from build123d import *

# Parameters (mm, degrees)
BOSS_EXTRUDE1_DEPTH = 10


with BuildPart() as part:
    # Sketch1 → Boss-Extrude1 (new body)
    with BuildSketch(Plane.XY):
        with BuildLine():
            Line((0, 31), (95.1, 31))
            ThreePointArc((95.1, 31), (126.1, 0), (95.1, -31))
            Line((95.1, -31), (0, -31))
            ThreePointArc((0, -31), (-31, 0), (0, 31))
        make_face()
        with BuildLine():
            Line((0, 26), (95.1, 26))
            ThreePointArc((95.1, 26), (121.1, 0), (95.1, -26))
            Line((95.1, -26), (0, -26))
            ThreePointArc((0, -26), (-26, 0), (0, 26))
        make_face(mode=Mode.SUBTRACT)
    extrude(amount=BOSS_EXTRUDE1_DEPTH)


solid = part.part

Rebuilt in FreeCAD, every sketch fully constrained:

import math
import FreeCAD as App
import Part
import Sketcher

doc = App.newDocument("Part")
body = doc.addObject("PartDesign::Body", "Body")

sketch1 = doc.addObject("Sketcher::SketchObject", "Sketch")
body.addObject(sketch1)
sketch1.AttachmentSupport = (doc.XY_Plane, [""])
sketch1.MapMode = "FlatFace"
sketch1.addGeometry([
    Part.LineSegment(App.Vector(95, 31, 0), App.Vector(0, 31, 0)),
    Part.ArcOfCircle(Part.Circle(App.Vector(0, 0, 0), App.Vector(0, 0, 1), 31), math.radians(90), math.radians(270)),
    Part.LineSegment(App.Vector(0, -31, 0), App.Vector(95, -31, 0)),
    Part.ArcOfCircle(Part.Circle(App.Vector(95, 0, 0), App.Vector(0, 0, 1), 31), math.radians(-90), math.radians(90)),
    Part.LineSegment(App.Vector(0, 26, 0), App.Vector(95, 26, 0)),
    Part.ArcOfCircle(Part.Circle(App.Vector(95, 0, 0), App.Vector(0, 0, 1), 26), math.radians(-90), math.radians(90)),
    Part.LineSegment(App.Vector(95, -26, 0), App.Vector(0, -26, 0)),
    Part.ArcOfCircle(Part.Circle(App.Vector(0, 0, 0), App.Vector(0, 0, 1), 26), math.radians(90), math.radians(270)),
], False)
sketch1.addConstraint([
    Sketcher.Constraint("Tangent", 0, 2, 1, 1),
    Sketcher.Constraint("Tangent", 1, 2, 2, 1),
    Sketcher.Constraint("Tangent", 2, 2, 3, 1),
    Sketcher.Constraint("Tangent", 3, 2, 0, 1),
    Sketcher.Constraint("Tangent", 4, 2, 5, 2),
    Sketcher.Constraint("Tangent", 5, 1, 6, 1),
    Sketcher.Constraint("Tangent", 6, 2, 7, 2),
    Sketcher.Constraint("Tangent", 7, 1, 4, 1),
    Sketcher.Constraint("Horizontal", 0),
    Sketcher.Constraint("Horizontal", 2),
    Sketcher.Constraint("Horizontal", 4),
    Sketcher.Constraint("Horizontal", 6),
    Sketcher.Constraint("Coincident", 1, 3, -1, 1),
    Sketcher.Constraint("Coincident", 7, 3, -1, 1),
    Sketcher.Constraint("Vertical", 5, 3, 2, 2),
    Sketcher.Constraint("Radius", 1, 31.0),
    Sketcher.Constraint("Radius", 5, 26.0),
    Sketcher.Constraint("DistanceX", 0, 2, 0, 1, 95.1),
])
pad1 = doc.addObject("PartDesign::Pad", "Pad")
body.addObject(pad1)
pad1.Profile = sketch1
pad1.Length = 10

doc.recompute()
